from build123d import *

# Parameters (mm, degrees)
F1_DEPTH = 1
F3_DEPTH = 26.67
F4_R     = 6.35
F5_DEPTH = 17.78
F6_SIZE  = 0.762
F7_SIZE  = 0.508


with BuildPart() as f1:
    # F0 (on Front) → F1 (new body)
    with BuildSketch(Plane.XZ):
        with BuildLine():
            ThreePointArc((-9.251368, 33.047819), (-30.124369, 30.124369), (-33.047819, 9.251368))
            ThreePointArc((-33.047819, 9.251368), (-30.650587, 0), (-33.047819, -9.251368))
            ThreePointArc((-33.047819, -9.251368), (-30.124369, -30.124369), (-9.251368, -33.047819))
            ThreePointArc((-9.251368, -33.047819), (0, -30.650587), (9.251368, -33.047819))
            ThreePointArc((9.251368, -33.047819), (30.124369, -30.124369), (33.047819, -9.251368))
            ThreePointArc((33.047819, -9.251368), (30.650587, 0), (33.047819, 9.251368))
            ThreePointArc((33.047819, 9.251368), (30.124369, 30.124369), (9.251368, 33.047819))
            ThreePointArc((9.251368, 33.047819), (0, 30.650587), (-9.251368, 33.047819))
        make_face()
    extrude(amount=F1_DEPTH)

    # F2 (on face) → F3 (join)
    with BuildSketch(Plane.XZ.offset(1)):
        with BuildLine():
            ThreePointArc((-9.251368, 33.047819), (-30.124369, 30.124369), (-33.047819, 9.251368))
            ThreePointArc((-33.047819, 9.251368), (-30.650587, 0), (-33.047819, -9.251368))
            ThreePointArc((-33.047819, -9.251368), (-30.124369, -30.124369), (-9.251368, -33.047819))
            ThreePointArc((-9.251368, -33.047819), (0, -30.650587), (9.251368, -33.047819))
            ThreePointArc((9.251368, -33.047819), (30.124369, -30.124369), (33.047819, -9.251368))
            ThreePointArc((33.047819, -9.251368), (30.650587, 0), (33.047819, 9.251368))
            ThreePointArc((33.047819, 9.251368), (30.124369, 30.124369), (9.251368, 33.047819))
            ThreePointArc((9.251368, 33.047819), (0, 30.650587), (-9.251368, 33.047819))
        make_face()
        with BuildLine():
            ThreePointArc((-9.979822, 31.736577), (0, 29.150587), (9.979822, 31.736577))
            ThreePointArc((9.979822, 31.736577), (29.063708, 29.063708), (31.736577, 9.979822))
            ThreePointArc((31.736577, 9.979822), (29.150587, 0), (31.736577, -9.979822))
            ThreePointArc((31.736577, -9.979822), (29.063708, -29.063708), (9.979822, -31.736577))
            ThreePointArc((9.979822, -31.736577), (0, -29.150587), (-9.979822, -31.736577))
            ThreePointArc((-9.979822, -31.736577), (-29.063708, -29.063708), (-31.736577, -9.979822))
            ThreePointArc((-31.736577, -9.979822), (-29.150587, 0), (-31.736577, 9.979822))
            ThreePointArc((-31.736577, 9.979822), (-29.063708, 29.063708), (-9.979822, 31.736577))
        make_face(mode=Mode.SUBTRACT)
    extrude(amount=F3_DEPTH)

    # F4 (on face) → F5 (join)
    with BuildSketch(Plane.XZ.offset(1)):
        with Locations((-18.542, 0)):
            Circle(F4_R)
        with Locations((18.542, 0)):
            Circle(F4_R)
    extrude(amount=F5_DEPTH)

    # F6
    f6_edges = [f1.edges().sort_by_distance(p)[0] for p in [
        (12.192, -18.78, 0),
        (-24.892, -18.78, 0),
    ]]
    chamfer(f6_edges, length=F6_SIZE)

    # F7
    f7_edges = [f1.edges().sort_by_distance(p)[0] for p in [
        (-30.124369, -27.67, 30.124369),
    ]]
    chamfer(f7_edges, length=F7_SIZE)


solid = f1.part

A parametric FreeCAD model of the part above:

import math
import FreeCAD as App
import Part
import Sketcher

V = App.Vector
Q = App.Units.Quantity


def edges_at(feature, points):
    """Names of the edges that pass closest to the given points."""
    edges = feature.Shape.Edges
    near = lambda p: min(range(len(edges)), key=lambda i: edges[i].distToShape(Part.Vertex(*p))[0])
    return sorted({f"Edge{near(p) + 1}" for p in points})

doc = App.newDocument("Part")
body = doc.addObject("PartDesign::Body", "Body")

# Sketch on XZ plane
sketch1 = body.newObject("Sketcher::SketchObject", "Sketch")
sketch1.AttachmentSupport = (doc.getObject("XZ_Plane"), [""])
sketch1.MapMode = "FlatFace"
sketch1.addGeometry(Part.ArcOfCircle(Part.Circle(V(-17.75, 17.75, 0), V(0, 0, 1), 17.5), math.radians(60.945843), math.radians(209.054157)), False)
sketch1.addGeometry(Part.ArcOfCircle(Part.Circle(V(-49.700585, 0, 0), V(0, 0, 1), 19.049998), math.radians(-29.05416), math.radians(29.05416)), False)
sketch1.addGeometry(Part.ArcOfCircle(Part.Circle(V(-17.75, -17.75, 0), V(0, 0, 1), 17.5), math.radians(150.945843), math.radians(299.054157)), False)
sketch1.addGeometry(Part.ArcOfCircle(Part.Circle(V(0, -49.700585, 0), V(0, 0, 1), 19.049998), math.radians(60.94584), math.radians(119.05416)), False)
sketch1.addGeometry(Part.ArcOfCircle(Part.Circle(V(17.75, -17.75, 0), V(0, 0, 1), 17.5), math.radians(-119.054157), math.radians(29.054157)), False)
sketch1.addGeometry(Part.ArcOfCircle(Part.Circle(V(49.700585, 0, 0), V(0, 0, 1), 19.049998), math.radians(150.94584), math.radians(209.05416)), False)
sketch1.addGeometry(Part.ArcOfCircle(Part.Circle(V(17.75, 17.75, 0), V(0, 0, 1), 17.5), math.radians(-29.054157), math.radians(119.054157)), False)
sketch1.addGeometry(Part.ArcOfCircle(Part.Circle(V(0, 49.700585, 0), V(0, 0, 1), 19.049998), math.radians(-119.05416), math.radians(-60.94584)), False)
sketch1.addConstraint(Sketcher.Constraint("Tangent", 0, 2, 1, 2))
sketch1.addConstraint(Sketcher.Constraint("Tangent", 1, 1, 2, 1))
sketch1.addConstraint(Sketcher.Constraint("Tangent", 2, 2, 3, 2))
sketch1.addConstraint(Sketcher.Constraint("Tangent", 3, 1, 4, 1))
sketch1.addConstraint(Sketcher.Constraint("Tangent", 4, 2, 5, 2))
sketch1.addConstraint(Sketcher.Constraint("Tangent", 5, 1, 6, 1))
sketch1.addConstraint(Sketcher.Constraint("Tangent", 6, 2, 7, 2))
sketch1.addConstraint(Sketcher.Constraint("Tangent", 7, 1, 0, 1))
sketch1.addConstraint(Sketcher.Constraint("Equal", 0, 2))
sketch1.addConstraint(Sketcher.Constraint("Equal", 1, 3))
sketch1.addConstraint(Sketcher.Constraint("Equal", 2, 4))
sketch1.addConstraint(Sketcher.Constraint("Equal", 3, 5))
sketch1.addConstraint(Sketcher.Constraint("Equal", 4, 6))
sketch1.addConstraint(Sketcher.Constraint("Equal", 5, 7))
sketch1.addConstraint(Sketcher.Constraint("Symmetric", 0, 3, 4, 3, -1, 1))
sketch1.addConstraint(Sketcher.Constraint("Symmetric", 2, 3, 6, 3, -1, 1))
sketch1.addConstraint(Sketcher.Constraint("Symmetric", 2, 3, 4, 3, -2))
sketch1.addConstraint(Sketcher.Constraint("Radius", 1, Q("0.7499999 in")))
sketch1.addConstraint(Sketcher.Constraint("Radius", 0, 17.5))
sketch1.addConstraint(Sketcher.Constraint("DistanceX", 0, 3, -1, 1, 17.75))
sketch1.addConstraint(Sketcher.Constraint("DistanceY", -1, 1, 0, 3, 17.75))
pad1 = body.newObject("PartDesign::Pad", "Pad")
pad1.Profile = sketch1
pad1.Length = 1

# Sketch on XZ plane
sketch2 = body.newObject("Sketcher::SketchObject", "Sketch001")
sketch2.AttachmentSupport = (doc.getObject("XZ_Plane"), [""])
sketch2.MapMode = "FlatFace"
sketch2.AttachmentOffset = App.Placement(V(0, 0, 1), App.Rotation())
sketch2.addGeometry(Part.ArcOfCircle(Part.Circle(V(-17.75, 17.75, 0), V(0, 0, 1), 17.5), math.radians(60.945843), math.radians(209.054157)), False)
sketch2.addGeometry(Part.ArcOfCircle(Part.Circle(V(-49.700585, 0, 0), V(0, 0, 1), 19.049998), math.radians(-29.05416), math.radians(29.05416)), False)
sketch2.addGeometry(Part.ArcOfCircle(Part.Circle(V(-17.75, -17.75, 0), V(0, 0, 1), 17.5), math.radians(150.945843), math.radians(299.054157)), False)
sketch2.addGeometry(Part.ArcOfCircle(Part.Circle(V(0, -49.700585, 0), V(0, 0, 1), 19.049998), math.radians(60.94584), math.radians(119.05416)), False)
sketch2.addGeometry(Part.ArcOfCircle(Part.Circle(V(17.75, -17.75, 0), V(0, 0, 1), 17.5), math.radians(-119.054157), math.radians(29.054157)), False)
sketch2.addGeometry(Part.ArcOfCircle(Part.Circle(V(49.700585, 0, 0), V(0, 0, 1), 19.049998), math.radians(150.94584), math.radians(209.05416)), False)
sketch2.addGeometry(Part.ArcOfCircle(Part.Circle(V(17.75, 17.75, 0), V(0, 0, 1), 17.5), math.radians(-29.054157), math.radians(119.054157)), False)
sketch2.addGeometry(Part.ArcOfCircle(Part.Circle(V(0, 49.700585, 0), V(0, 0, 1), 19.049998), math.radians(-119.05416), math.radians(-60.94584)), False)
sketch2.addGeometry(Part.ArcOfCircle(Part.Circle(V(-17.749999, 17.749999, 0), V(0, 0, 1), 16), math.radians(60.945846), math.radians(209.054154)), False)
sketch2.addGeometry(Part.ArcOfCircle(Part.Circle(V(0, 49.700587, 0), V(0, 0, 1), 20.55), math.radians(-119.054156), math.radians(-60.945844)), False)
sketch2.addGeometry(Part.ArcOfCircle(Part.Circle(V(17.749999, 17.749999, 0), V(0, 0, 1), 16), math.radians(-29.054154), math.radians(119.054154)), False)
sketch2.addGeometry(Part.ArcOfCircle(Part.Circle(V(49.700587, 0, 0), V(0, 0, 1), 20.55), math.radians(150.945844), math.radians(209.054156)), False)
sketch2.addGeometry(Part.ArcOfCircle(Part.Circle(V(17.749999, -17.749999, 0), V(0, 0, 1), 16), math.radians(-119.054154), math.radians(29.054154)), False)
sketch2.addGeometry(Part.ArcOfCircle(Part.Circle(V(0, -49.700587, 0), V(0, 0, 1), 20.55), math.radians(60.945844), math.radians(119.054156)), False)
sketch2.addGeometry(Part.ArcOfCircle(Part.Circle(V(-17.749999, -17.749999, 0), V(0, 0, 1), 16), math.radians(150.945846), math.radians(299.054154)), False)
sketch2.addGeometry(Part.ArcOfCircle(Part.Circle(V(-49.700587, 0, 0), V(0, 0, 1), 20.55), math.radians(-29.054156), math.radians(29.054156)), False)
sketch2.addConstraint(Sketcher.Constraint("Tangent", 0, 2, 1, 2))
sketch2.addConstraint(Sketcher.Constraint("Tangent", 1, 1, 2, 1))
sketch2.addConstraint(Sketcher.Constraint("Tangent", 2, 2, 3, 2))
sketch2.addConstraint(Sketcher.Constraint("Tangent", 3, 1, 4, 1))
sketch2.addConstraint(Sketcher.Constraint("Tangent", 4, 2, 5, 2))
sketch2.addConstraint(Sketcher.Constraint("Tangent", 5, 1, 6, 1))
sketch2.addConstraint(Sketcher.Constraint("Tangent", 6, 2, 7, 2))
sketch2.addConstraint(Sketcher.Constraint("Tangent", 7, 1, 0, 1))
sketch2.addConstraint(Sketcher.Constraint("Tangent", 8, 1, 9, 1))
sketch2.addConstraint(Sketcher.Constraint("Tangent", 9, 2, 10, 2))
sketch2.addConstraint(Sketcher.Constraint("Tangent", 10, 1, 11, 1))
sketch2.addConstraint(Sketcher.Constraint("Tangent", 11, 2, 12, 2))
sketch2.addConstraint(Sketcher.Constraint("Tangent", 12, 1, 13, 1))
sketch2.addConstraint(Sketcher.Constraint("Tangent", 13, 2, 14, 2))
sketch2.addConstraint(Sketcher.Constraint("Tangent", 14, 1, 15, 1))
sketch2.addConstraint(Sketcher.Constraint("Tangent", 15, 2, 8, 2))
sketch2.addConstraint(Sketcher.Constraint("Coincident", 8, 3, 0, 3))
sketch2.addConstraint(Sketcher.Constraint("Coincident", 9, 3, 7, 3))
sketch2.addConstraint(Sketcher.Constraint("Coincident", 10, 3, 6, 3))
sketch2.addConstraint(Sketcher.Constraint("Coincident", 11, 3, 5, 3))
sketch2.addConstraint(Sketcher.Constraint("Coincident", 12, 3, 4, 3))
sketch2.addConstraint(Sketcher.Constraint("Coincident", 13, 3, 3, 3))
sketch2.addConstraint(Sketcher.Constraint("Coincident", 14, 3, 2, 3))
sketch2.addConstraint(Sketcher.Constraint("Equal", 0, 2))
sketch2.addConstraint(Sketcher.Constraint("Equal", 1, 3))
sketch2.addConstraint(Sketcher.Constraint("Equal", 2, 4))
sketch2.addConstraint(Sketcher.Constraint("Equal", 3, 5))
sketch2.addConstraint(Sketcher.Constraint("Equal", 4, 6))
sketch2.addConstraint(Sketcher.Constraint("Equal", 5, 7))
sketch2.addConstraint(Sketcher.Constraint("Equal", 13, 15))
sketch2.addConstraint(Sketcher.Constraint("Symmetric", 0, 3, 4, 3, -1, 1))
sketch2.addConstraint(Sketcher.Constraint("Symmetric", 2, 3, 6, 3, -1, 1))
sketch2.addConstraint(Sketcher.Constraint("Symmetric", 2, 3, 4, 3, -2))
sketch2.addConstraint(Sketcher.Constraint("Radius", 1, Q("0.7499999 in")))
sketch2.addConstraint(Sketcher.Constraint("Radius", 0, 17.5))
sketch2.addConstraint(Sketcher.Constraint("Radius", 8, 16.0))
sketch2.addConstraint(Sketcher.Constraint("DistanceX", 0, 3, -1, 1, 17.75))
sketch2.addConstraint(Sketcher.Constraint("DistanceY", -1, 1, 0, 3, 17.75))
pad2 = body.newObject("PartDesign::Pad", "Pad001")
pad2.Profile = sketch2
pad2.Length = Q("1.05 in")

# Sketch on XZ plane
sketch3 = body.newObject("Sketcher::SketchObject", "Sketch002")
sketch3.AttachmentSupport = (doc.getObject("XZ_Plane"), [""])
sketch3.MapMode = "FlatFace"
sketch3.AttachmentOffset = App.Placement(V(0, 0, 1), App.Rotation())
sketch3.addGeometry(Part.Circle(V(-18.542, 0, 0), V(0, 0, 1), 6.35), False)
sketch3.addGeometry(Part.Circle(V(18.542, 0, 0), V(0, 0, 1), 6.35), False)
sketch3.addConstraint(Sketcher.Constraint("Equal", 0, 1))
sketch3.addConstraint(Sketcher.Constraint("Symmetric", 0, 3, 1, 3, -1, 1))
sketch3.addConstraint(Sketcher.Constraint("PointOnObject", 0, 3, -1))
sketch3.addConstraint(Sketcher.Constraint("Diameter", 0, Q("0.5 in")))
sketch3.addConstraint(Sketcher.Constraint("DistanceX", 0, 3, -1, 1, Q("0.73 in")))
pad3 = body.newObject("PartDesign::Pad", "Pad002")
pad3.Profile = sketch3
pad3.Length = Q("0.7 in")
doc.recompute()

chamfer = body.newObject("PartDesign::Chamfer", "Chamfer")
chamfer.Base = (pad3, edges_at(pad3, [(12.192, -18.78, 0), (-24.892, -18.78, 0)]))
chamfer.Size = Q("0.03 in")
doc.recompute()

chamfer2 = body.newObject("PartDesign::Chamfer", "Chamfer001")
chamfer2.Base = (chamfer, edges_at(chamfer, [(-30.124, -27.67, 30.124)]))
chamfer2.Size = Q("0.02 in")

doc.recompute()
